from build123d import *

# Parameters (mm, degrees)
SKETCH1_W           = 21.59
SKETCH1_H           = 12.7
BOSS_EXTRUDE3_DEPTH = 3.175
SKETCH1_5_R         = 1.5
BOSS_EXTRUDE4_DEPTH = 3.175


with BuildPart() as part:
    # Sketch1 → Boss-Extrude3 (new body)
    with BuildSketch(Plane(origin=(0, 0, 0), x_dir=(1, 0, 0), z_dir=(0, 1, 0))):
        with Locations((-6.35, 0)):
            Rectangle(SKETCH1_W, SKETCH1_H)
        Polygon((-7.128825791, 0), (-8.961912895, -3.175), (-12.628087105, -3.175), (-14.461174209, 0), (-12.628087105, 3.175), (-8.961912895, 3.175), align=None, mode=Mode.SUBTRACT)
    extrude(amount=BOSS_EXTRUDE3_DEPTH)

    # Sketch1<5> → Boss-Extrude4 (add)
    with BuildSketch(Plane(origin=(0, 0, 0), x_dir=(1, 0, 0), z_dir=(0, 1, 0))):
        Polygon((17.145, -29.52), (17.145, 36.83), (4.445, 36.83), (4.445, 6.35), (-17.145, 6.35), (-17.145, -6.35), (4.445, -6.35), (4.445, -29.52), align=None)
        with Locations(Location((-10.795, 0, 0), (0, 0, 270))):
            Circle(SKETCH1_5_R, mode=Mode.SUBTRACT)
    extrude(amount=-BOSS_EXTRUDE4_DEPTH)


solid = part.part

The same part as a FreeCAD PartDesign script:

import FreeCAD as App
import Part
import Sketcher
Q = App.Units.Quantity


def add_polygon(sketch, points):
    """Adds a closed chain of lines whose ends are joined by coincident constraints."""
    first, n = sketch.GeometryCount, len(points)
    for a, b in zip(points, points[1:] + points[:1]):
        sketch.addGeometry(Part.LineSegment(App.Vector(*a, 0), App.Vector(*b, 0)), False)
    for i in range(n):
        sketch.addConstraint(Sketcher.Constraint("Coincident", first + i, 2, first + (i + 1) % n, 1))

doc = App.newDocument("Part")
params = doc.addObject("Spreadsheet::Sheet", "Params")
for row, (alias, value) in enumerate([
    ("sketch1_height", "0.5 in"),
    ("sketch1_width", "0.85 in"),
    ("pad1_length", "0.125 in"),
    ("sketch2_width", "0.5 in"),
    ("sketch2_height", "1.2 in"),
    ("sketch2_width2", "0.85 in"),
    ("pad2_length", "0.125 in"),
], start=1):
    params.set(f"A{row}", alias)
    params.set(f"B{row}", "=" + value)
    params.setAlias(f"B{row}", alias)

body = doc.addObject("PartDesign::Body", "Body")

# Sketch on XZ plane
sketch1 = doc.addObject("Sketcher::SketchObject", "Sketch")
body.addObject(sketch1)
sketch1.AttachmentSupport = (doc.XZ_Plane, [""])
sketch1.MapMode = "FlatFace"
add_polygon(sketch1, [(-17.1, -6.3), (-17.1, 6.3), (4.4, 6.3), (4.4, -6.3)])  # lines 0-3
add_polygon(sketch1, [(-9, -3.2), (-7.1, 0), (-9, 3.2), (-12.6, 3.2), (-14.5, 0), (-12.6, -3.2)])  # lines 4-9
sketch1.addConstraint(Sketcher.Constraint("Vertical", 0))
sketch1.addConstraint(Sketcher.Constraint("Horizontal", 1))
sketch1.addConstraint(Sketcher.Constraint("Vertical", 2))
sketch1.addConstraint(Sketcher.Constraint("Horizontal", 3))
sketch1.addConstraint(Sketcher.Constraint("Horizontal", 6))
sketch1.addConstraint(Sketcher.Constraint("Horizontal", 9))
sketch1.addConstraint(Sketcher.Constraint("Symmetric", 6, 2, 8, 2, -1))
sketch1.addConstraint(Sketcher.Constraint("PointOnObject", 4, 2, -1))
sketch1.addConstraint(Sketcher.Constraint("PointOnObject", 7, 2, -1))
sketch1.addConstraint(Sketcher.Constraint("Parallel", 4, 7))
sketch1.addConstraint(Sketcher.Constraint("Parallel", 5, 8))
sketch1.addConstraint(Sketcher.Constraint("DistanceY", 0, 1, 0, 2, Q("0.5 in")))
sketch1.addConstraint(Sketcher.Constraint("Angle", 4, Q("60 deg")))
sketch1.addConstraint(Sketcher.Constraint("DistanceX", 1, 1, 1, 2, Q("0.85 in")))
sketch1.addConstraint(Sketcher.Constraint("DistanceY", -1, 1, 0, 2, Q("0.25 in")))
sketch1.addConstraint(Sketcher.Constraint("DistanceY", 8, 2, 6, 2, Q("0.25 in")))
sketch1.addConstraint(Sketcher.Constraint("DistanceX", 0, 2, -1, 1, Q("0.675 in")))
sketch1.addConstraint(Sketcher.Constraint("DistanceX", 6, 2, 6, 1, 3.666174))
sketch1.addConstraint(Sketcher.Constraint("DistanceX", 4, 2, -1, 1, 7.128826))
sketch1.setExpression("Constraints[21]", "Params.sketch1_height")
sketch1.setExpression("Constraints[23]", "Params.sketch1_width")
pad1 = doc.addObject("PartDesign::Pad", "Pad")
body.addObject(pad1)
pad1.Profile = sketch1
pad1.setExpression("Length", "Params.pad1_length")
pad1.Reversed = True

# Sketch on XZ plane
sketch2 = doc.addObject("Sketcher::SketchObject", "Sketch001")
body.addObject(sketch2)
sketch2.AttachmentSupport = (doc.XZ_Plane, [""])
sketch2.MapMode = "FlatFace"
add_polygon(sketch2, [(17.1, 29.5), (17.1, -36.8), (4.4, -36.8), (4.4, -6.3), (-17.1, -6.3), (-17.1, 6.3), (4.4, 6.3), (4.4, 29.5)])  # lines 0-7
sketch2.addGeometry(Part.Circle(App.Vector(-10.8, 0, 0), App.Vector(0, 0, 1), 1.5), False)  # 8
sketch2.addConstraint(Sketcher.Constraint("Vertical", 0))
sketch2.addConstraint(Sketcher.Constraint("Horizontal", 1))
sketch2.addConstraint(Sketcher.Constraint("Vertical", 2))
sketch2.addConstraint(Sketcher.Constraint("Horizontal", 3))
sketch2.addConstraint(Sketcher.Constraint("Vertical", 4))
sketch2.addConstraint(Sketcher.Constraint("Horizontal", 5))
sketch2.addConstraint(Sketcher.Constraint("Vertical", 6))
sketch2.addConstraint(Sketcher.Constraint("Horizontal", 7))
sketch2.addConstraint(Sketcher.Constraint("Symmetric", 2, 2, 5, 2, -1))
sketch2.addConstraint(Sketcher.Constraint("PointOnObject", 8, 3, -1))
sketch2.addConstraint(Sketcher.Constraint("Equal", 7, 4))
sketch2.addConstraint(Sketcher.Constraint("DistanceX", 1, 2, 1, 1, Q("0.5 in")))
sketch2.addConstraint(Sketcher.Constraint("DistanceY", 2, 1, 2, 2, Q("1.2 in")))
sketch2.addConstraint(Sketcher.Constraint("DistanceX", 3, 2, 3, 1, Q("0.85 in")))
sketch2.addConstraint(Sketcher.Constraint("DistanceX", 8, 3, 0, 2, Q("1.1 in")))
sketch2.addConstraint(Sketcher.Constraint("Diameter", 8, 3.0))
sketch2.addConstraint(Sketcher.Constraint("DistanceX", 8, 3, -1, 1, Q("0.425 in")))
sketch2.addConstraint(Sketcher.Constraint("DistanceY", 0, 2, 0, 1, 66.35))
sketch2.setExpression("Constraints[19]", "Params.sketch2_width")
sketch2.setExpression("Constraints[20]", "Params.sketch2_height")
sketch2.setExpression("Constraints[21]", "Params.sketch2_width2")
pad2 = doc.addObject("PartDesign::Pad", "Pad001")
body.addObject(pad2)
pad2.Profile = sketch2
pad2.setExpression("Length", "Params.pad2_length")

doc.recompute()
